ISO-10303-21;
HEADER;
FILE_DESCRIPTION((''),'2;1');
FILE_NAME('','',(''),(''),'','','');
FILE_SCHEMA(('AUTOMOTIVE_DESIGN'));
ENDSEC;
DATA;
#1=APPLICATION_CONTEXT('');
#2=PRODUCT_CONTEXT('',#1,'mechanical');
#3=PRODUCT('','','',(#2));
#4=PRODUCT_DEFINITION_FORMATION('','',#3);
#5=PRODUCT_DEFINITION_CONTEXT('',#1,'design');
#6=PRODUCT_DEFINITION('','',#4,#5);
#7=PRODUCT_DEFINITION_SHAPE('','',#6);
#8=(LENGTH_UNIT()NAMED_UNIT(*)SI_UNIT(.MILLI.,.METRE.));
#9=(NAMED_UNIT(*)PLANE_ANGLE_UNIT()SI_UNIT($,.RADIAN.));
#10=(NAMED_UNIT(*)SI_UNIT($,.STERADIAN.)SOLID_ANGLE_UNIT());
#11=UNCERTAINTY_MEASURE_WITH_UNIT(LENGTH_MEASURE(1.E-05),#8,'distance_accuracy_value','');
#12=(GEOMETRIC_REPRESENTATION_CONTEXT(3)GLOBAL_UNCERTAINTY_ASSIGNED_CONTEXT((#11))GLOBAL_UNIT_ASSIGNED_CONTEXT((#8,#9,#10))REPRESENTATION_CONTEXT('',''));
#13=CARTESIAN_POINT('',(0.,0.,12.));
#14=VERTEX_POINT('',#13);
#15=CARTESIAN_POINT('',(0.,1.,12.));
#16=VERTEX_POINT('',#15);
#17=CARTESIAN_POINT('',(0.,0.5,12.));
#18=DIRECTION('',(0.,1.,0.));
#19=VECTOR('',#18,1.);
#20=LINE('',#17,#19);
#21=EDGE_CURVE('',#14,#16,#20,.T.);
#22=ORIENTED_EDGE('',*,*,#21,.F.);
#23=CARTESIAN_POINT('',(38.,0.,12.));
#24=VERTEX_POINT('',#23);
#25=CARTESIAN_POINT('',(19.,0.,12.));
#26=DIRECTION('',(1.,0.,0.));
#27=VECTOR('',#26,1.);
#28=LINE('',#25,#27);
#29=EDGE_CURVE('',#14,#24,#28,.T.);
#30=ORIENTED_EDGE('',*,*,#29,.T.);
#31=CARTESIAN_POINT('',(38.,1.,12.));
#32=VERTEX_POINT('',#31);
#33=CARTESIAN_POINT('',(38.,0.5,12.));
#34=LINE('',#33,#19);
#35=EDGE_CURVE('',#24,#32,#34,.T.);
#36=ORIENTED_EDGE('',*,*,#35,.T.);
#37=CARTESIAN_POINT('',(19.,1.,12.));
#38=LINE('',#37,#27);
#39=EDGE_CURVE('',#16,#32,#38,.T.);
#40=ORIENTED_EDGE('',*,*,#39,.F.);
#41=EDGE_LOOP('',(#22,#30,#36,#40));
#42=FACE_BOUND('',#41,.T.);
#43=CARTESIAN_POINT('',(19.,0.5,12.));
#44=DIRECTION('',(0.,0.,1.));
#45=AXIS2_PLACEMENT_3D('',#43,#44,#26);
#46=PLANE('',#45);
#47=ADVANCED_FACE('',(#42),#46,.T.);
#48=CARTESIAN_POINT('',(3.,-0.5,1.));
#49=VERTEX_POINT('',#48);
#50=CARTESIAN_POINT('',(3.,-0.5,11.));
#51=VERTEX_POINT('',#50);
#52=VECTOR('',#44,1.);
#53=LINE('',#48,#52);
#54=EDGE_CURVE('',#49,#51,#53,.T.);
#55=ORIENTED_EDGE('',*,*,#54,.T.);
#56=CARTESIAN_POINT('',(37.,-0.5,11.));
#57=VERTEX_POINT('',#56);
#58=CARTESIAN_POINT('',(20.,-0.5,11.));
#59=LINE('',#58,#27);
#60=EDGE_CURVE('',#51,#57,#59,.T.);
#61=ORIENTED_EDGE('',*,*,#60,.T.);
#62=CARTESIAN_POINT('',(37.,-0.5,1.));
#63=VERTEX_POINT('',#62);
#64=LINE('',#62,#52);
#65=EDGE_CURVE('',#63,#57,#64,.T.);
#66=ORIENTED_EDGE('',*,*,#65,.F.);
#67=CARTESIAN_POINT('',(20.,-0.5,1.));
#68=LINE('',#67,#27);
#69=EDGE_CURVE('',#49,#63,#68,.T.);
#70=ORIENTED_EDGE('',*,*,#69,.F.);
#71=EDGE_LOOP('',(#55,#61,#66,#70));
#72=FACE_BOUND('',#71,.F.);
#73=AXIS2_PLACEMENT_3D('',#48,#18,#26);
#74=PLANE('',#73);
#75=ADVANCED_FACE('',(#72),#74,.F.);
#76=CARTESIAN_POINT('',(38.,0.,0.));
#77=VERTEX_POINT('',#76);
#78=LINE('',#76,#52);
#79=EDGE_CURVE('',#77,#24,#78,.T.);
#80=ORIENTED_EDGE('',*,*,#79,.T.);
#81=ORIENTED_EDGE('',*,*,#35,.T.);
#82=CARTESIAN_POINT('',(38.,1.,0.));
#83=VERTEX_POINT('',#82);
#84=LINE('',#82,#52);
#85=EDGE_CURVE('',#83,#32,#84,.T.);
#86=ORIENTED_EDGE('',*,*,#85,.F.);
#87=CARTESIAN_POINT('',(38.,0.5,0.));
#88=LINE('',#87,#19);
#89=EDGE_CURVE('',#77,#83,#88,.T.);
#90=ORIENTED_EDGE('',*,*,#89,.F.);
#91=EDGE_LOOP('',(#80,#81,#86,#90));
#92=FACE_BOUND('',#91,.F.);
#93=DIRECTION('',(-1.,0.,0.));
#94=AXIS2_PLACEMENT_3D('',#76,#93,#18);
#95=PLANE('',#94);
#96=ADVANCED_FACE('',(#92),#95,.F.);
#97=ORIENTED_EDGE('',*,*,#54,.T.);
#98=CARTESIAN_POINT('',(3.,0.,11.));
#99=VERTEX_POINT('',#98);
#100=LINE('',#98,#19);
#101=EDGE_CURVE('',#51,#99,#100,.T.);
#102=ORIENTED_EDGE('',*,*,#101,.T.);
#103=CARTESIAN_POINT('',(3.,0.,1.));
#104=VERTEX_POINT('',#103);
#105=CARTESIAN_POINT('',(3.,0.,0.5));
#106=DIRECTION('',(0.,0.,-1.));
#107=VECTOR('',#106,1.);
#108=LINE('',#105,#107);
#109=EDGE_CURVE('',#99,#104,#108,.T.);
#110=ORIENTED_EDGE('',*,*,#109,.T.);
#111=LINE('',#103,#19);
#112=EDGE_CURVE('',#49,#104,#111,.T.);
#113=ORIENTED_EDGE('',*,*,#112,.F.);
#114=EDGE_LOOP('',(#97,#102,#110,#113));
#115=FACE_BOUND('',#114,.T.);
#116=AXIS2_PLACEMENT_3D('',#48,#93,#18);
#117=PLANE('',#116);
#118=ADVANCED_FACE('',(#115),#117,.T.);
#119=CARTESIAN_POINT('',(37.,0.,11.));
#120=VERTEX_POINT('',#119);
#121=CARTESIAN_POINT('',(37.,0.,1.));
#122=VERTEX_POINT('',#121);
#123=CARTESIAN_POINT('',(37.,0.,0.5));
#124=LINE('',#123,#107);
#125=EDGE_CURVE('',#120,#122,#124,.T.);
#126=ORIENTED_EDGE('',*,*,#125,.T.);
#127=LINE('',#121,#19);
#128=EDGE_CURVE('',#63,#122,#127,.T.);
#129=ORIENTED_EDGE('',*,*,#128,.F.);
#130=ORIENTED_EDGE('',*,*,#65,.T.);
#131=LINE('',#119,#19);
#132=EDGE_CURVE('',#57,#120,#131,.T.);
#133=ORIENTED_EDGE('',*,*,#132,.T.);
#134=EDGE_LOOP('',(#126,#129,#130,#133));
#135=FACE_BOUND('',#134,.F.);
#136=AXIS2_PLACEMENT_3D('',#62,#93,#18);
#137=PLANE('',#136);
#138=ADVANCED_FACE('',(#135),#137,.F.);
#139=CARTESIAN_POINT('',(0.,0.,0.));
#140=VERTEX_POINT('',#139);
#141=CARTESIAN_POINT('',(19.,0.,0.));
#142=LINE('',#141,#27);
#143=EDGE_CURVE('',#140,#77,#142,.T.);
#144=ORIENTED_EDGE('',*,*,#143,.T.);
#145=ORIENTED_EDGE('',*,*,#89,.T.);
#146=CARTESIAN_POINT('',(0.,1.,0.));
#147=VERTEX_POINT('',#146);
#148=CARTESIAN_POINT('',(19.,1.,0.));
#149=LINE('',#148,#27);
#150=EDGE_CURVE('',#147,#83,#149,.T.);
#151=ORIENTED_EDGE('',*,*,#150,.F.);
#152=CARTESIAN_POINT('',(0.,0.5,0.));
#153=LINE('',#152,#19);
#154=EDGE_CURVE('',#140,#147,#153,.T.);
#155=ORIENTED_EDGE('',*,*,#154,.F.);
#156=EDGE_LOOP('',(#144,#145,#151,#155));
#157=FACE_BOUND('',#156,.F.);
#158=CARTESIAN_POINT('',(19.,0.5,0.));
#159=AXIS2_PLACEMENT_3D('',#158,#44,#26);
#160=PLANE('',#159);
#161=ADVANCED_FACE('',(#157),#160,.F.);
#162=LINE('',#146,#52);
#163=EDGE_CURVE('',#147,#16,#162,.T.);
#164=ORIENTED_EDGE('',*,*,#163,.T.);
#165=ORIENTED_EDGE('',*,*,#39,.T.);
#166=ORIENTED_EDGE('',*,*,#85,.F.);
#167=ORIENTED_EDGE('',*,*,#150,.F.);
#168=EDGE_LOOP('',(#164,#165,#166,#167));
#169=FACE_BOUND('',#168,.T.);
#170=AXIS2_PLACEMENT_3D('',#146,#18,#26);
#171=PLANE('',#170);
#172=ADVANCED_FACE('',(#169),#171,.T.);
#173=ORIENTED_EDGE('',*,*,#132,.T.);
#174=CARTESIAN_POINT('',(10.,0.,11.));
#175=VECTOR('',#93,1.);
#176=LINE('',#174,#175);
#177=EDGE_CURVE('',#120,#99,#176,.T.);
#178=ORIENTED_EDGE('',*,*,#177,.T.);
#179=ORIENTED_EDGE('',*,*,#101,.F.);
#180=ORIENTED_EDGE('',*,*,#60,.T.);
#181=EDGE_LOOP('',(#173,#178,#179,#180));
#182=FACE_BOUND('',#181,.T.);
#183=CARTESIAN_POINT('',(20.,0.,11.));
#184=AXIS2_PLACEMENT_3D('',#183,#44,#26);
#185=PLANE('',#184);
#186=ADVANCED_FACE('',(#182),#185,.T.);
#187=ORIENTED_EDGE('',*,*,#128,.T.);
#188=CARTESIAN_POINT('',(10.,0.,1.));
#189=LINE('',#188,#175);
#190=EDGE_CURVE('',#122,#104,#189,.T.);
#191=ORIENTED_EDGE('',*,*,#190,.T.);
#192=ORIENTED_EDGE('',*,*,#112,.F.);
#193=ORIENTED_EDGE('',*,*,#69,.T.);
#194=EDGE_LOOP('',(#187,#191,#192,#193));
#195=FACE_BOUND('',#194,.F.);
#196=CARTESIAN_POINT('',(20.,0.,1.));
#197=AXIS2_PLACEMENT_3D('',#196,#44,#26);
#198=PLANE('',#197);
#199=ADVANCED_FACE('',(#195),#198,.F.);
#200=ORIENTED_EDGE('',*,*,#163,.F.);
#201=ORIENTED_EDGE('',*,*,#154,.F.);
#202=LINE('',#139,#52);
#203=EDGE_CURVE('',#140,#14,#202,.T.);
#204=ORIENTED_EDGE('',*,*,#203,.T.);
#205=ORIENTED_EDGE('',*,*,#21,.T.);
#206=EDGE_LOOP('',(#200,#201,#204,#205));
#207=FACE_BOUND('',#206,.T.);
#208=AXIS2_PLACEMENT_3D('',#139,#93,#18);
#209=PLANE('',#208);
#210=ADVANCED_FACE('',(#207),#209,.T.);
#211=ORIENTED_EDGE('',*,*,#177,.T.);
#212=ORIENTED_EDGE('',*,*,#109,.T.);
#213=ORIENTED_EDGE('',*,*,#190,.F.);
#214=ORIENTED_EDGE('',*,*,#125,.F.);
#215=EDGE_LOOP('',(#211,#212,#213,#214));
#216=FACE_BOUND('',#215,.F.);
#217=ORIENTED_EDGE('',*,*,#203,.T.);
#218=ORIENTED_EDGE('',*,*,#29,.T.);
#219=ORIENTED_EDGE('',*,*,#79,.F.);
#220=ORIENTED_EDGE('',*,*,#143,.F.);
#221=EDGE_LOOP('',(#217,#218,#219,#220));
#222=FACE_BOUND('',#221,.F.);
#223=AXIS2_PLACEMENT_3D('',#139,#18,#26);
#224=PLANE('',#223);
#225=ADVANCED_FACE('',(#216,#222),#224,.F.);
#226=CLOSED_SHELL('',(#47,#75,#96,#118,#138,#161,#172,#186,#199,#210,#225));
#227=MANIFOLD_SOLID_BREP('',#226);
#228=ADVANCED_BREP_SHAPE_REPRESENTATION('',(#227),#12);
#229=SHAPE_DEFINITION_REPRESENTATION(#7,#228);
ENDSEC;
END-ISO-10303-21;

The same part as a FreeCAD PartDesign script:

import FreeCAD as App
import Part
import Sketcher

V = App.Vector
Q = App.Units.Quantity

doc = App.newDocument("Part")
body = doc.addObject("PartDesign::Body", "Body")

sketch1 = body.newObject("Sketcher::SketchObject", "Sketch")
sketch1.AttachmentSupport = (doc.getObject("XY_Plane"), [""])
sketch1.MapMode = "FlatFace"
sketch1.addGeometry([
    Part.LineSegment(V(0, 1, 0), V(0, 0, 0)),
    Part.LineSegment(V(0, 0, 0), V(38, 0, 0)),
    Part.LineSegment(V(38, 0, 0), V(38, 1, 0)),
    Part.LineSegment(V(38, 1, 0), V(0, 1, 0)),
], False)
sketch1.addConstraint([
    Sketcher.Constraint("Coincident", 0, 2, 1, 1),
    Sketcher.Constraint("Coincident", 1, 2, 2, 1),
    Sketcher.Constraint("Coincident", 2, 2, 3, 1),
    Sketcher.Constraint("Coincident", 3, 2, 0, 1),
    Sketcher.Constraint("Vertical", 0),
    Sketcher.Constraint("Horizontal", 1),
    Sketcher.Constraint("Vertical", 2),
    Sketcher.Constraint("Horizontal", 3),
    Sketcher.Constraint("Coincident", 0, 2, -1, 1),
    Sketcher.Constraint("DistanceX", 1, 1, 1, 2, Q("38 mm")),
    Sketcher.Constraint("DistanceY", 0, 2, 0, 1, Q("1 mm")),
])
pad1 = body.newObject("PartDesign::Pad", "Pad")
pad1.Profile = sketch1
pad1.Length = 12
body2 = doc.addObject("PartDesign::Body", "Body001")

sketch2 = body2.newObject("Sketcher::SketchObject", "Sketch001")
sketch2.AttachmentSupport = (doc.getObject("XY_Plane001"), [""])
sketch2.MapMode = "FlatFace"
sketch2.AttachmentOffset = App.Placement(V(0, 0, 1), App.Rotation())
sketch2.addGeometry([
    Part.LineSegment(V(3, 0.5, 0), V(3, -0.5, 0)),
    Part.LineSegment(V(3, -0.5, 0), V(37, -0.5, 0)),
    Part.LineSegment(V(37, -0.5, 0), V(37, 0.5, 0)),
    Part.LineSegment(V(37, 0.5, 0), V(3, 0.5, 0)),
], False)
sketch2.addConstraint([
    Sketcher.Constraint("Coincident", 0, 2, 1, 1),
    Sketcher.Constraint("Coincident", 1, 2, 2, 1),
    Sketcher.Constraint("Coincident", 2, 2, 3, 1),
    Sketcher.Constraint("Coincident", 3, 2, 0, 1),
    Sketcher.Constraint("Vertical", 0),
    Sketcher.Constraint("Horizontal", 1),
    Sketcher.Constraint("Vertical", 2),
    Sketcher.Constraint("Horizontal", 3),
    Sketcher.Constraint("DistanceX", 1, 1, 1, 2, Q("34 mm")),
    Sketcher.Constraint("DistanceY", 0, 2, 0, 1, Q("1 mm")),
    Sketcher.Constraint("DistanceX", -1, 1, 0, 2, Q("3 mm")),
    Sketcher.Constraint("DistanceY", 0, 2, -1, 1, Q("0.5 mm")),
])
pad2 = body2.newObject("PartDesign::Pad", "Pad001")
pad2.Profile = sketch2
pad2.Length = 10
doc.recompute()

boolean = body2.newObject("PartDesign::Boolean", "Boolean")
boolean.Type = "Fuse"
boolean.addObjects([body])

doc.recompute()
